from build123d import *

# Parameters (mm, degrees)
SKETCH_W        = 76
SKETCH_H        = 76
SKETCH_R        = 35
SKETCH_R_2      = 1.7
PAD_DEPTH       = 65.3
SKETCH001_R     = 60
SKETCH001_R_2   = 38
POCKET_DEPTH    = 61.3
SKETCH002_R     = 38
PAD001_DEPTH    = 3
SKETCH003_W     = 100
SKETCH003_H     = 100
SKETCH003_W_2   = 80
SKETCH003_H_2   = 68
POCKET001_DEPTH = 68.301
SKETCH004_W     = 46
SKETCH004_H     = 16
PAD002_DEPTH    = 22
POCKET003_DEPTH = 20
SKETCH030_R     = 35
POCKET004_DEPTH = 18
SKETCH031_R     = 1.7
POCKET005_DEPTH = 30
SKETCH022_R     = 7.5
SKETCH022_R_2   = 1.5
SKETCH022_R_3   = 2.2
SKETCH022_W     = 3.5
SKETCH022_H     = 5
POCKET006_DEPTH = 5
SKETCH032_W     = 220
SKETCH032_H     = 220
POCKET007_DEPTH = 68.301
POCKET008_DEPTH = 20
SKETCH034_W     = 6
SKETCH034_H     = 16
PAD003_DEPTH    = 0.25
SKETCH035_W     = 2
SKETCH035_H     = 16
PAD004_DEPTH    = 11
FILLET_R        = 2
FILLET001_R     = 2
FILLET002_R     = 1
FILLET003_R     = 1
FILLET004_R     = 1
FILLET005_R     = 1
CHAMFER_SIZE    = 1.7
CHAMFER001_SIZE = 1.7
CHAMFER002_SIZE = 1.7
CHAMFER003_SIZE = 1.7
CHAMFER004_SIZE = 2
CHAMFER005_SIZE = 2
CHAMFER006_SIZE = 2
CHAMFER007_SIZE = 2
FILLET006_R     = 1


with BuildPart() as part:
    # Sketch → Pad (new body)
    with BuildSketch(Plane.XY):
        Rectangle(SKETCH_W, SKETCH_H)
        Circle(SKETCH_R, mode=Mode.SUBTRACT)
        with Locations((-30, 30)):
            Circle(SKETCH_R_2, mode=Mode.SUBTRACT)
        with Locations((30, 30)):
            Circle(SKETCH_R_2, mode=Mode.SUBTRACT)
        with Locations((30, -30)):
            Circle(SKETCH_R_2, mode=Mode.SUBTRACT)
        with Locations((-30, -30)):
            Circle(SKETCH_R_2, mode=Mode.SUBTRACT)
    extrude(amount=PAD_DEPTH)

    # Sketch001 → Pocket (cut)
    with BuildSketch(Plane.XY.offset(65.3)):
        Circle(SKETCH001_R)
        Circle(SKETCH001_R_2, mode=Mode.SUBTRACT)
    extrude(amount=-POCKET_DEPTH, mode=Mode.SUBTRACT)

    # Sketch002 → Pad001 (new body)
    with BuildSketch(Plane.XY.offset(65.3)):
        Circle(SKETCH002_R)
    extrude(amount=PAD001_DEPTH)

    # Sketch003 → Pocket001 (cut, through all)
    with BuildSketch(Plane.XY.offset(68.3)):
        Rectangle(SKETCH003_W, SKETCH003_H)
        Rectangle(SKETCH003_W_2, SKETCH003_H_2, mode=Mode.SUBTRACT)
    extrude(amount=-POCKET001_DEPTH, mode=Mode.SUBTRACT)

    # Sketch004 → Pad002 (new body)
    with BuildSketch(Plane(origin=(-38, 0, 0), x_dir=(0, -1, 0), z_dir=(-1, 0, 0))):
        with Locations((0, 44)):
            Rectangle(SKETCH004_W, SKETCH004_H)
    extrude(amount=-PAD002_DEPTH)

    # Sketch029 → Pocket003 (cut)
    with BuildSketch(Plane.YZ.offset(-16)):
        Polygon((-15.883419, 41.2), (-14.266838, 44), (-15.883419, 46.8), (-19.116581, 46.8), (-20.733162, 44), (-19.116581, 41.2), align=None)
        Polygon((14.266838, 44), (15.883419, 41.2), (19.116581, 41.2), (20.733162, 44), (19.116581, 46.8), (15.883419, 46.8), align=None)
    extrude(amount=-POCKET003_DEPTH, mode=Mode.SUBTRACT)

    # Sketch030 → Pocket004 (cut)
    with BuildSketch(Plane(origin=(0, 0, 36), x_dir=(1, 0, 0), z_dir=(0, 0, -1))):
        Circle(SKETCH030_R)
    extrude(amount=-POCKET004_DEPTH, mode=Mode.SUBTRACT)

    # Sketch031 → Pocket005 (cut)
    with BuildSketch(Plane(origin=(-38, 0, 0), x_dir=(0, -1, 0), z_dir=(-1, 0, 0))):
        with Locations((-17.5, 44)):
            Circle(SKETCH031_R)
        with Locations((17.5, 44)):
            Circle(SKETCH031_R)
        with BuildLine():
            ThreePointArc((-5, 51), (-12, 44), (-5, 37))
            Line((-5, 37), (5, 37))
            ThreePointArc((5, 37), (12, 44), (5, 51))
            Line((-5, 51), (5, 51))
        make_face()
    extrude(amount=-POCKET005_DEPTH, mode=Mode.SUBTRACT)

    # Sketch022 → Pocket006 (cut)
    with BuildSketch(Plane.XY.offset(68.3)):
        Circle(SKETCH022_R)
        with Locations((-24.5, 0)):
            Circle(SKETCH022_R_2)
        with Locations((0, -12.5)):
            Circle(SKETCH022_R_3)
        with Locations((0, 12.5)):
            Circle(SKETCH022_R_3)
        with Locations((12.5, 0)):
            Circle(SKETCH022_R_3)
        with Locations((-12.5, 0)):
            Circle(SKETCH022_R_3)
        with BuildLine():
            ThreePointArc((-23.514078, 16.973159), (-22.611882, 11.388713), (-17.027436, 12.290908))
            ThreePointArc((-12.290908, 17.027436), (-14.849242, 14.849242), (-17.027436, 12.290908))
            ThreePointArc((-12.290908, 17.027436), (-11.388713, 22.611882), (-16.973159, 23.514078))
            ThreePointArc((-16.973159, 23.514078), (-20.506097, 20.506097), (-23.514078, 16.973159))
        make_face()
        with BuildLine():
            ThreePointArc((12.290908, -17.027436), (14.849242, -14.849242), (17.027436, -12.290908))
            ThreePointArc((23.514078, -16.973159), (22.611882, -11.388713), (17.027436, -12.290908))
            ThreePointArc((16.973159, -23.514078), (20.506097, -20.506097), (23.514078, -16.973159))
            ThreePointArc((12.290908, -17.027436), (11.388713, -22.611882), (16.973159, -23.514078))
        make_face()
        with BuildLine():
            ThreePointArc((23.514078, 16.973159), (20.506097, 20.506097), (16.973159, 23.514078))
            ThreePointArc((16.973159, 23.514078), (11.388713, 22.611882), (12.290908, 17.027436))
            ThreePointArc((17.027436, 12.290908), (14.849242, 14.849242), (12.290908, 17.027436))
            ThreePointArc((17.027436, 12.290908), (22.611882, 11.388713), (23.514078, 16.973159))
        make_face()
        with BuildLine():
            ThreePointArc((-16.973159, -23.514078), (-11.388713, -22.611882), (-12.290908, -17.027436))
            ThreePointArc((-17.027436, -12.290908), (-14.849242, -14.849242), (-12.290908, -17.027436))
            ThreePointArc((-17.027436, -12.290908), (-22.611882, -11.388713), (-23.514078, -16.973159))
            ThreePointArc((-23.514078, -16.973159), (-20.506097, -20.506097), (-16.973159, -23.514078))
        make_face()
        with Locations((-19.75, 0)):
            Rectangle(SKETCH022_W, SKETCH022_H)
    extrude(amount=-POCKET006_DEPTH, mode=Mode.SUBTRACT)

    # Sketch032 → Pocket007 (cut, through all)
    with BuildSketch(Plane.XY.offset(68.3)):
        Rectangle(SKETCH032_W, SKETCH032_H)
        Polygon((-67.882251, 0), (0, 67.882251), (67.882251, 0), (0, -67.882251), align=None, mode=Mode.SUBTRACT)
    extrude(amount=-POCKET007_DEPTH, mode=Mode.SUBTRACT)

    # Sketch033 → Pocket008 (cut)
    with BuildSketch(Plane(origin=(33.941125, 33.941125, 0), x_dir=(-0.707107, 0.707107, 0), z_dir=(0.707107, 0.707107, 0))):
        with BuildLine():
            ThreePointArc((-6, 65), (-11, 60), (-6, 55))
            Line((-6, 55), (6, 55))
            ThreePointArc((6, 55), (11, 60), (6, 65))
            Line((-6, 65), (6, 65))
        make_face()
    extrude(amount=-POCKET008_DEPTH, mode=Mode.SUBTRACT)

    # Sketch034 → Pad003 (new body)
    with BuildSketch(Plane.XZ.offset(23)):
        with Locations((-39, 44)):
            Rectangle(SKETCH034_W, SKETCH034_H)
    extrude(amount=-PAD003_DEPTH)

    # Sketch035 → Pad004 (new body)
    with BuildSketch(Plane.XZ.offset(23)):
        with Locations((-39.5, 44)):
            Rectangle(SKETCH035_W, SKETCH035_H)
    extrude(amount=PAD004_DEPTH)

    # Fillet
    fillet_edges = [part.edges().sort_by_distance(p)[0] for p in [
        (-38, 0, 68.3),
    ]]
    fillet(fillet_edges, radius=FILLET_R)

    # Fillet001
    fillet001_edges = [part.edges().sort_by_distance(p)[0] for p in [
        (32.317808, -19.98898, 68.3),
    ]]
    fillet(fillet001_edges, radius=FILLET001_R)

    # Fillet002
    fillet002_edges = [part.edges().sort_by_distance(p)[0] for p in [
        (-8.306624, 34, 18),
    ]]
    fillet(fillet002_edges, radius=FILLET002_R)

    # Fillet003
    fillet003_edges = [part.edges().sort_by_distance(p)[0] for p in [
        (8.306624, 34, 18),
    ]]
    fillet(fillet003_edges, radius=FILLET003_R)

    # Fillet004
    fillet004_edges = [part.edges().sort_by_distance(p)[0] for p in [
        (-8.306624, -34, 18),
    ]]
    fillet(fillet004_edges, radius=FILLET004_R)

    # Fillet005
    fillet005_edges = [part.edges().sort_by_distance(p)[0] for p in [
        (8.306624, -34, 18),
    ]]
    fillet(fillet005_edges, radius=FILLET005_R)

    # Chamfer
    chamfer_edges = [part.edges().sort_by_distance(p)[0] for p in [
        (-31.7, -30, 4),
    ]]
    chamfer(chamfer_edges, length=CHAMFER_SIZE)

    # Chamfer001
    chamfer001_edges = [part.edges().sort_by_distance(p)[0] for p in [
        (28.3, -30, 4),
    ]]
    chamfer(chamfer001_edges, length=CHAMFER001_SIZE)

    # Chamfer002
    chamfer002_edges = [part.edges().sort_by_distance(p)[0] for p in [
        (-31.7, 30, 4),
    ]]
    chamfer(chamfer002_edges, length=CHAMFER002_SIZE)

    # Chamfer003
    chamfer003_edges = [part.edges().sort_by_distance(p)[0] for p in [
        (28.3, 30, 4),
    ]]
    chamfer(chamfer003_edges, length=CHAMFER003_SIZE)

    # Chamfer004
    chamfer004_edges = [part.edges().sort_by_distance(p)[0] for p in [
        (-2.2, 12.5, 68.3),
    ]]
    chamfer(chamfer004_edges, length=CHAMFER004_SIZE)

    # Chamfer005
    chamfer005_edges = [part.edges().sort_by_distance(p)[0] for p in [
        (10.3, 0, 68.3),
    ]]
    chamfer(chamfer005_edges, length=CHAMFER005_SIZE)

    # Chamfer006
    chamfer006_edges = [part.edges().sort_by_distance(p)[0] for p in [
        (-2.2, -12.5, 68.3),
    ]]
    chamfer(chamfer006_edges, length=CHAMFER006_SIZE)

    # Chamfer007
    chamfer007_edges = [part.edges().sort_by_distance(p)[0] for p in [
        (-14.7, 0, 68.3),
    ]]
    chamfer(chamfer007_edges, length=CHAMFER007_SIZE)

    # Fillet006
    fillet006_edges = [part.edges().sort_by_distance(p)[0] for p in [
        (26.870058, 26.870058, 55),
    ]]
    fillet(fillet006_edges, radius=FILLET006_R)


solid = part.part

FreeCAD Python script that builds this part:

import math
import FreeCAD as App
import Part
import Sketcher

V = App.Vector
Q = App.Units.Quantity


def edges_at(feature, points):
    """Names of the edges that pass closest to the given points."""
    edges = feature.Shape.Edges
    near = lambda p: min(range(len(edges)), key=lambda i: edges[i].distToShape(Part.Vertex(*p))[0])
    return sorted({f"Edge{near(p) + 1}" for p in points})

doc = App.newDocument("Part")
body = doc.addObject("PartDesign::Body", "Body")

sketch1 = doc.addObject("Sketcher::SketchObject", "Sketch")
body.addObject(sketch1)
sketch1.AttachmentSupport = (doc.XY_Plane, [""])
sketch1.MapMode = "FlatFace"
sketch1.addGeometry(Part.LineSegment(V(-38, 38, 0), V(-38, -38, 0)), False)
sketch1.addGeometry(Part.LineSegment(V(-38, -38, 0), V(38, -38, 0)), False)
sketch1.addGeometry(Part.LineSegment(V(38, -38, 0), V(38, 38, 0)), False)
sketch1.addGeometry(Part.LineSegment(V(38, 38, 0), V(-38, 38, 0)), False)
sketch1.addGeometry(Part.Circle(V(-30, -30, 0), V(0, 0, 1), 1.7), False)
sketch1.addGeometry(Part.Circle(V(30, -30, 0), V(0, 0, 1), 1.7), False)
sketch1.addGeometry(Part.Circle(V(-30, 30, 0), V(0, 0, 1), 1.7), False)
sketch1.addGeometry(Part.Circle(V(0, 0, 0), V(0, 0, 1), 35), False)
sketch1.addGeometry(Part.Circle(V(30, 30, 0), V(0, 0, 1), 1.7), False)
sketch1.addConstraint(Sketcher.Constraint("Coincident", 0, 2, 1, 1))
sketch1.addConstraint(Sketcher.Constraint("Coincident", 1, 2, 2, 1))
sketch1.addConstraint(Sketcher.Constraint("Coincident", 2, 2, 3, 1))
sketch1.addConstraint(Sketcher.Constraint("Coincident", 3, 2, 0, 1))
sketch1.addConstraint(Sketcher.Constraint("Vertical", 0))
sketch1.addConstraint(Sketcher.Constraint("Horizontal", 1))
sketch1.addConstraint(Sketcher.Constraint("Vertical", 2))
sketch1.addConstraint(Sketcher.Constraint("Horizontal", 3))
sketch1.addConstraint(Sketcher.Constraint("Coincident", 7, 3, -1, 1))
sketch1.addConstraint(Sketcher.Constraint("Equal", 4, 5))
sketch1.addConstraint(Sketcher.Constraint("Equal", 5, 6))
sketch1.addConstraint(Sketcher.Constraint("Equal", 6, 8))
sketch1.addConstraint(Sketcher.Constraint("Symmetric", 5, 3, 6, 3, -1, 1))
sketch1.addConstraint(Sketcher.Constraint("Symmetric", 4, 3, 8, 3, -1, 1))
sketch1.addConstraint(Sketcher.Constraint("Symmetric", 0, 2, 2, 2, -1, 1))
sketch1.addConstraint(Sketcher.Constraint("Symmetric", 4, 3, 5, 3, -2))
sketch1.addConstraint(Sketcher.Constraint("Equal", 3, 0))
sketch1.addConstraint(Sketcher.Constraint("Diameter", 7, Q("70 mm")))
sketch1.addConstraint(Sketcher.Constraint("Diameter", 4, Q("3.4 mm")))
sketch1.addConstraint(Sketcher.Constraint("DistanceX", 1, 1, 1, 2, Q("76 mm")))
sketch1.addConstraint(Sketcher.Constraint("DistanceX", 4, 3, -1, 1, Q("30 mm")))
sketch1.addConstraint(Sketcher.Constraint("DistanceY", 4, 3, -1, 1, Q("30 mm")))
pad1 = doc.addObject("PartDesign::Pad", "Pad")
body.addObject(pad1)
pad1.Profile = sketch1
pad1.Length = 65.3

sketch2 = doc.addObject("Sketcher::SketchObject", "Sketch001")
body.addObject(sketch2)
sketch2.AttachmentSupport = (doc.XY_Plane, [""])
sketch2.MapMode = "FlatFace"
sketch2.AttachmentOffset = App.Placement(V(0, 0, 65.3), App.Rotation())
sketch2.addGeometry(Part.Circle(V(0, 0, 0), V(0, 0, 1), 60), False)
sketch2.addGeometry(Part.Circle(V(0, 0, 0), V(0, 0, 1), 38), False)
sketch2.addConstraint(Sketcher.Constraint("Coincident", 0, 3, -1, 1))
sketch2.addConstraint(Sketcher.Constraint("Coincident", 1, 3, -1, 1))
sketch2.addConstraint(Sketcher.Constraint("Diameter", 0, Q("120 mm")))
sketch2.addConstraint(Sketcher.Constraint("Diameter", 1, Q("76 mm")))
pocket1 = doc.addObject("PartDesign::Pocket", "Pocket")
body.addObject(pocket1)
pocket1.Profile = sketch2
pocket1.Length = 61.3

sketch3 = doc.addObject("Sketcher::SketchObject", "Sketch002")
body.addObject(sketch3)
sketch3.AttachmentSupport = (doc.XY_Plane, [""])
sketch3.MapMode = "FlatFace"
sketch3.AttachmentOffset = App.Placement(V(0, 0, 65.3), App.Rotation())
sketch3.addGeometry(Part.Circle(V(0, 0, 0), V(0, 0, 1), 38), False)
sketch3.addConstraint(Sketcher.Constraint("Coincident", 0, 3, -1, 1))
sketch3.addConstraint(Sketcher.Constraint("Diameter", 0, Q("76 mm")))
pad2 = doc.addObject("PartDesign::Pad", "Pad001")
body.addObject(pad2)
pad2.Profile = sketch3
pad2.Length = 3

sketch4 = doc.addObject("Sketcher::SketchObject", "Sketch003")
body.addObject(sketch4)
sketch4.AttachmentSupport = (doc.XY_Plane, [""])
sketch4.MapMode = "FlatFace"
sketch4.AttachmentOffset = App.Placement(V(0, 0, 68.3), App.Rotation())
sketch4.addGeometry(Part.LineSegment(V(-50, 50, 0), V(-50, -50, 0)), False)
sketch4.addGeometry(Part.LineSegment(V(-50, -50, 0), V(50, -50, 0)), False)
sketch4.addGeometry(Part.LineSegment(V(50, -50, 0), V(50, 50, 0)), False)
sketch4.addGeometry(Part.LineSegment(V(50, 50, 0), V(-50, 50, 0)), False)
sketch4.addGeometry(Part.LineSegment(V(40, -34, 0), V(-40, -34, 0)), False)
sketch4.addGeometry(Part.LineSegment(V(-40, -34, 0), V(-40, 34, 0)), False)
sketch4.addGeometry(Part.LineSegment(V(-40, 34, 0), V(40, 34, 0)), False)
sketch4.addGeometry(Part.LineSegment(V(40, 34, 0), V(40, -34, 0)), False)
sketch4.addConstraint(Sketcher.Constraint("Coincident", 0, 2, 1, 1))
sketch4.addConstraint(Sketcher.Constraint("Coincident", 1, 2, 2, 1))
sketch4.addConstraint(Sketcher.Constraint("Coincident", 2, 2, 3, 1))
sketch4.addConstraint(Sketcher.Constraint("Coincident", 3, 2, 0, 1))
sketch4.addConstraint(Sketcher.Constraint("Coincident", 4, 2, 5, 1))
sketch4.addConstraint(Sketcher.Constraint("Coincident", 5, 2, 6, 1))
sketch4.addConstraint(Sketcher.Constraint("Coincident", 6, 2, 7, 1))
sketch4.addConstraint(Sketcher.Constraint("Coincident", 7, 2, 4, 1))
sketch4.addConstraint(Sketcher.Constraint("Vertical", 0))
sketch4.addConstraint(Sketcher.Constraint("Horizontal", 1))
sketch4.addConstraint(Sketcher.Constraint("Vertical", 2))
sketch4.addConstraint(Sketcher.Constraint("Horizontal", 3))
sketch4.addConstraint(Sketcher.Constraint("Horizontal", 4))
sketch4.addConstraint(Sketcher.Constraint("Vertical", 5))
sketch4.addConstraint(Sketcher.Constraint("Horizontal", 6))
sketch4.addConstraint(Sketcher.Constraint("Vertical", 7))
sketch4.addConstraint(Sketcher.Constraint("Symmetric", 0, 2, 2, 2, -1, 1))
sketch4.addConstraint(Sketcher.Constraint("Symmetric", 4, 2, 6, 2, -1, 1))
sketch4.addConstraint(Sketcher.Constraint("Equal", 3, 0))
sketch4.addConstraint(Sketcher.Constraint("DistanceX", 1, 1, 1, 2, Q("100 mm")))
sketch4.addConstraint(Sketcher.Constraint("DistanceX", 4, 2, 4, 1, Q("80 mm")))
sketch4.addConstraint(Sketcher.Constraint("DistanceY", 5, 1, 5, 2, Q("68 mm")))
pocket2 = doc.addObject("PartDesign::Pocket", "Pocket001")
body.addObject(pocket2)
pocket2.Profile = sketch4
pocket2.Type = "ThroughAll"

sketch5 = doc.addObject("Sketcher::SketchObject", "Sketch004")
body.addObject(sketch5)
sketch5.AttachmentSupport = (doc.YZ_Plane, [""])
sketch5.MapMode = "FlatFace"
sketch5.AttachmentOffset = App.Placement(V(0, 0, -38), App.Rotation())
sketch5.addGeometry(Part.LineSegment(V(23, 52, 0), V(23, 36, 0)), False)
sketch5.addGeometry(Part.LineSegment(V(23, 36, 0), V(-23, 36, 0)), False)
sketch5.addGeometry(Part.LineSegment(V(-23, 36, 0), V(-23, 52, 0)), False)
sketch5.addGeometry(Part.LineSegment(V(-23, 52, 0), V(23, 52, 0)), False)
sketch5.addConstraint(Sketcher.Constraint("Coincident", 0, 2, 1, 1))
sketch5.addConstraint(Sketcher.Constraint("Coincident", 1, 2, 2, 1))
sketch5.addConstraint(Sketcher.Constraint("Coincident", 2, 2, 3, 1))
sketch5.addConstraint(Sketcher.Constraint("Coincident", 3, 2, 0, 1))
sketch5.addConstraint(Sketcher.Constraint("Vertical", 0))
sketch5.addConstraint(Sketcher.Constraint("Horizontal", 1))
sketch5.addConstraint(Sketcher.Constraint("Vertical", 2))
sketch5.addConstraint(Sketcher.Constraint("Horizontal", 3))
sketch5.addConstraint(Sketcher.Constraint("DistanceX", 1, 2, 1, 1, Q("46 mm")))
sketch5.addConstraint(Sketcher.Constraint("DistanceY", 0, 2, 0, 1, Q("16 mm")))
sketch5.addConstraint(Sketcher.Constraint("DistanceX", -1, 1, 0, 2, Q("23 mm")))
sketch5.addConstraint(Sketcher.Constraint("DistanceY", -1, 1, 0, 2, Q("36 mm")))
pad3 = doc.addObject("PartDesign::Pad", "Pad002")
body.addObject(pad3)
pad3.Profile = sketch5
pad3.Length = 22

sketch6 = doc.addObject("Sketcher::SketchObject", "Sketch005")
body.addObject(sketch6)
sketch6.AttachmentSupport = (doc.YZ_Plane, [""])
sketch6.MapMode = "FlatFace"
sketch6.AttachmentOffset = App.Placement(V(0, 0, -16), App.Rotation())
sketch6.addGeometry(Part.LineSegment(V(-15.9, 41.2, 0), V(-14.3, 44, 0)), False)
sketch6.addGeometry(Part.LineSegment(V(-14.3, 44, 0), V(-15.9, 46.8, 0)), False)
sketch6.addGeometry(Part.LineSegment(V(-15.9, 46.8, 0), V(-19.1, 46.8, 0)), False)
sketch6.addGeometry(Part.LineSegment(V(-19.1, 46.8, 0), V(-20.7, 44, 0)), False)
sketch6.addGeometry(Part.LineSegment(V(-20.7, 44, 0), V(-19.1, 41.2, 0)), False)
sketch6.addGeometry(Part.LineSegment(V(-19.1, 41.2, 0), V(-15.9, 41.2, 0)), False)
sketch6.addGeometry(Part.LineSegment(V(14.3, 44, 0), V(15.9, 41.2, 0)), False)
sketch6.addGeometry(Part.LineSegment(V(15.9, 41.2, 0), V(19.1, 41.2, 0)), False)
sketch6.addGeometry(Part.LineSegment(V(19.1, 41.2, 0), V(20.7, 44, 0)), False)
sketch6.addGeometry(Part.LineSegment(V(20.7, 44, 0), V(19.1, 46.8, 0)), False)
sketch6.addGeometry(Part.LineSegment(V(19.1, 46.8, 0), V(15.9, 46.8, 0)), False)
sketch6.addGeometry(Part.LineSegment(V(15.9, 46.8, 0), V(14.3, 44, 0)), False)
sketch6.addConstraint(Sketcher.Constraint("Coincident", 0, 2, 1, 1))
sketch6.addConstraint(Sketcher.Constraint("Coincident", 1, 2, 2, 1))
sketch6.addConstraint(Sketcher.Constraint("Coincident", 2, 2, 3, 1))
sketch6.addConstraint(Sketcher.Constraint("Coincident", 3, 2, 4, 1))
sketch6.addConstraint(Sketcher.Constraint("Coincident", 4, 2, 5, 1))
sketch6.addConstraint(Sketcher.Constraint("Coincident", 5, 2, 0, 1))
sketch6.addConstraint(Sketcher.Constraint("Coincident", 6, 2, 7, 1))
sketch6.addConstraint(Sketcher.Constraint("Coincident", 7, 2, 8, 1))
sketch6.addConstraint(Sketcher.Constraint("Coincident", 8, 2, 9, 1))
sketch6.addConstraint(Sketcher.Constraint("Coincident", 9, 2, 10, 1))
sketch6.addConstraint(Sketcher.Constraint("Coincident", 10, 2, 11, 1))
sketch6.addConstraint(Sketcher.Constraint("Coincident", 11, 2, 6, 1))
sketch6.addConstraint(Sketcher.Constraint("Horizontal", 2))
sketch6.addConstraint(Sketcher.Constraint("Horizontal", 5))
sketch6.addConstraint(Sketcher.Constraint("Horizontal", 7))
sketch6.addConstraint(Sketcher.Constraint("Horizontal", 10))
sketch6.addConstraint(Sketcher.Constraint("Symmetric", 5, 2, 6, 2, -2))
sketch6.addConstraint(Sketcher.Constraint("Symmetric", 3, 2, 8, 2, -2))
sketch6.addConstraint(Sketcher.Constraint("Symmetric", 2, 2, 9, 2, -2))
sketch6.addConstraint(Sketcher.Constraint("Symmetric", 0, 2, 11, 2, -2))
sketch6.addConstraint(Sketcher.Constraint("Parallel", 0, 3))
sketch6.addConstraint(Sketcher.Constraint("Parallel", 1, 4))
sketch6.addConstraint(Sketcher.Constraint("Parallel", 4, 6))
sketch6.addConstraint(Sketcher.Constraint("Parallel", 3, 8))
sketch6.addConstraint(Sketcher.Constraint("Parallel", 8, 11))
sketch6.addConstraint(Sketcher.Constraint("Horizontal", 0, 2, 3, 2))
sketch6.addConstraint(Sketcher.Constraint("Vertical", 2, 2, 4, 2))
sketch6.addConstraint(Sketcher.Constraint("Angle", 0, Q("59.999996 deg")))
sketch6.addConstraint(Sketcher.Constraint("DistanceY", -1, 1, 0, 2, Q("44 mm")))
sketch6.addConstraint(Sketcher.Constraint("DistanceX", 4, 2, 6, 2, Q("35 mm")))
sketch6.addConstraint(Sketcher.Constraint("DistanceY", -1, 1, 1, 2, Q("46.8 mm")))
sketch6.addConstraint(Sketcher.Constraint("DistanceX", 2, 2, 2, 1, Q("3.233162 mm")))
pocket3 = doc.addObject("PartDesign::Pocket", "Pocket002")
body.addObject(pocket3)
pocket3.Profile = sketch6
pocket3.Length = 20

sketch7 = doc.addObject("Sketcher::SketchObject", "Sketch006")
body.addObject(sketch7)
sketch7.AttachmentSupport = (doc.XY_Plane, [""])
sketch7.MapMode = "FlatFace"
sketch7.AttachmentOffset = App.Placement(V(0, 0, 36), App.Rotation())
sketch7.addGeometry(Part.Circle(V(0, 0, 0), V(0, 0, 1), 35), False)
sketch7.addConstraint(Sketcher.Constraint("Coincident", 0, 3, -1, 1))
sketch7.addConstraint(Sketcher.Constraint("Diameter", 0, Q("70 mm")))
pocket4 = doc.addObject("PartDesign::Pocket", "Pocket003")
body.addObject(pocket4)
pocket4.Profile = sketch7
pocket4.Length = 18
pocket4.Reversed = True

sketch8 = doc.addObject("Sketcher::SketchObject", "Sketch007")
body.addObject(sketch8)
sketch8.AttachmentSupport = (doc.YZ_Plane, [""])
sketch8.MapMode = "FlatFace"
sketch8.AttachmentOffset = App.Placement(V(0, 0, -38), App.Rotation())
sketch8.addGeometry(Part.Circle(V(17.5, 44, 0), V(0, 0, 1), 1.7), False)
sketch8.addGeometry(Part.Circle(V(-17.5, 44, 0), V(0, 0, 1), 1.7), False)
sketch8.addGeometry(Part.ArcOfCircle(Part.Circle(V(5, 44, 0), V(0, 0, 1), 7), math.radians(-90), math.radians(90)), False)
sketch8.addGeometry(Part.LineSegment(V(5, 37, 0), V(-5, 37, 0)), False)
sketch8.addGeometry(Part.ArcOfCircle(Part.Circle(V(-5, 44, 0), V(0, 0, 1), 7), math.radians(90), math.radians(270)), False)
sketch8.addGeometry(Part.LineSegment(V(-5, 51, 0), V(5, 51, 0)), False)
sketch8.addConstraint(Sketcher.Constraint("Tangent", 2, 1, 3, 1))
sketch8.addConstraint(Sketcher.Constraint("Tangent", 3, 2, 4, 2))
sketch8.addConstraint(Sketcher.Constraint("Tangent", 4, 1, 5, 1))
sketch8.addConstraint(Sketcher.Constraint("Tangent", 5, 2, 2, 2))
sketch8.addConstraint(Sketcher.Constraint("Horizontal", 3))
sketch8.addConstraint(Sketcher.Constraint("Horizontal", 5))
sketch8.addConstraint(Sketcher.Constraint("Equal", 0, 1))
sketch8.addConstraint(Sketcher.Constraint("Symmetric", 0, 3, 1, 3, -2))
sketch8.addConstraint(Sketcher.Constraint("Horizontal", 1, 3, 2, 3))
sketch8.addConstraint(Sketcher.Constraint("Radius", 2, Q("7 mm")))
sketch8.addConstraint(Sketcher.Constraint("Diameter", 0, Q("3.4 mm")))
sketch8.addConstraint(Sketcher.Constraint("DistanceX", 3, 2, 3, 1, Q("10 mm")))
sketch8.addConstraint(Sketcher.Constraint("DistanceY", -1, 1, 0, 3, Q("44 mm")))
sketch8.addConstraint(Sketcher.Constraint("DistanceX", -1, 1, 2, 3, Q("5 mm")))
sketch8.addConstraint(Sketcher.Constraint("DistanceX", 1, 3, 0, 3, Q("35 mm")))
pocket5 = doc.addObject("PartDesign::Pocket", "Pocket004")
body.addObject(pocket5)
pocket5.Profile = sketch8
pocket5.Length = 30
pocket5.Reversed = True

sketch9 = doc.addObject("Sketcher::SketchObject", "Sketch008")
body.addObject(sketch9)
sketch9.AttachmentSupport = (doc.XY_Plane, [""])
sketch9.MapMode = "FlatFace"
sketch9.AttachmentOffset = App.Placement(V(0, 0, 68.3), App.Rotation())
sketch9.addGeometry(Part.Circle(V(0, 0, 0), V(0, 0, 1), 7.5), False)
sketch9.addGeometry(Part.Circle(V(-24.5, 0, 0), V(0, 0, 1), 1.5), False)
sketch9.addGeometry(Part.Circle(V(0, -12.5, 0), V(0, 0, 1), 2.2), False)
sketch9.addGeometry(Part.Circle(V(0, 12.5, 0), V(0, 0, 1), 2.2), False)
sketch9.addGeometry(Part.Circle(V(12.5, 0, 0), V(0, 0, 1), 2.2), False)
sketch9.addGeometry(Part.Circle(V(-12.5, 0, 0), V(0, 0, 1), 2.2), False)
sketch9.addGeometry(Part.ArcOfCircle(Part.Circle(V(-20.3, 14.6, 0), V(0, 0, 1), 4), math.radians(144), math.radians(324)), False)
sketch9.addGeometry(Part.ArcOfCircle(Part.Circle(V(0, 0, 0), V(0, 0, 1), 21), math.radians(125.82), math.radians(144.18)), False)
sketch9.addGeometry(Part.ArcOfCircle(Part.Circle(V(-14.6, 20.3, 0), V(0, 0, 1), 4), math.radians(-54), math.radians(126)), False)
sketch9.addGeometry(Part.ArcOfCircle(Part.Circle(V(0, 0, 0), V(0, 0, 1), 29), math.radians(125.82), math.radians(144.18)), False)
sketch9.addGeometry(Part.ArcOfCircle(Part.Circle(V(0, 0, 0), V(0, 0, 1), 21), math.radians(-54.18), math.radians(-35.82)), False)
sketch9.addGeometry(Part.ArcOfCircle(Part.Circle(V(14.6, -20.3, 0), V(0, 0, 1), 4), math.radians(126), math.radians(306)), False)
sketch9.addGeometry(Part.ArcOfCircle(Part.Circle(V(0, 0, 0), V(0, 0, 1), 29), math.radians(-54.18), math.radians(-35.82)), False)
sketch9.addGeometry(Part.ArcOfCircle(Part.Circle(V(20.3, -14.6, 0), V(0, 0, 1), 4), math.radians(-36), math.radians(144)), False)
sketch9.addGeometry(Part.ArcOfCircle(Part.Circle(V(0, 0, 0), V(0, 0, 1), 29), math.radians(35.82), math.radians(54.18)), False)
sketch9.addGeometry(Part.ArcOfCircle(Part.Circle(V(14.6, 20.3, 0), V(0, 0, 1), 4), math.radians(54), math.radians(234)), False)
sketch9.addGeometry(Part.ArcOfCircle(Part.Circle(V(0, 0, 0), V(0, 0, 1), 21), math.radians(35.82), math.radians(54.18)), False)
sketch9.addGeometry(Part.ArcOfCircle(Part.Circle(V(20.3, 14.6, 0), V(0, 0, 1), 4), math.radians(-144), math.radians(36)), False)
sketch9.addGeometry(Part.ArcOfCircle(Part.Circle(V(-14.6, -20.3, 0), V(0, 0, 1), 4), math.radians(-126), math.radians(54)), False)
sketch9.addGeometry(Part.ArcOfCircle(Part.Circle(V(0, 0, 0), V(0, 0, 1), 21), math.radians(-144.18), math.radians(-125.82)), False)
sketch9.addGeometry(Part.ArcOfCircle(Part.Circle(V(-20.3, -14.6, 0), V(0, 0, 1), 4), math.radians(36), math.radians(216)), False)
sketch9.addGeometry(Part.ArcOfCircle(Part.Circle(V(0, 0, 0), V(0, 0, 1), 29), math.radians(-144.18), math.radians(-125.82)), False)
sketch9.addGeometry(Part.LineSegment(V(-21.5, 2.5, 0), V(-21.5, -2.5, 0)), False)
sketch9.addGeometry(Part.LineSegment(V(-21.5, -2.5, 0), V(-18, -2.5, 0)), False)
sketch9.addGeometry(Part.LineSegment(V(-18, -2.5, 0), V(-18, 2.5, 0)), False)
sketch9.addGeometry(Part.LineSegment(V(-18, 2.5, 0), V(-21.5, 2.5, 0)), False)
sketch9.addConstraint(Sketcher.Constraint("Tangent", 6, 2, 7, 2))
sketch9.addConstraint(Sketcher.Constraint("Tangent", 7, 1, 8, 1))
sketch9.addConstraint(Sketcher.Constraint("Tangent", 8, 2, 9, 1))
sketch9.addConstraint(Sketcher.Constraint("Tangent", 9, 2, 6, 1))
sketch9.addConstraint(Sketcher.Constraint("Tangent", 10, 1, 11, 1))
sketch9.addConstraint(Sketcher.Constraint("Tangent", 11, 2, 12, 1))
sketch9.addConstraint(Sketcher.Constraint("Tangent", 12, 2, 13, 1))
sketch9.addConstraint(Sketcher.Constraint("Tangent", 13, 2, 10, 2))
sketch9.addConstraint(Sketcher.Constraint("Tangent", 14, 2, 15, 1))
sketch9.addConstraint(Sketcher.Constraint("Tangent", 15, 2, 16, 2))
sketch9.addConstraint(Sketcher.Constraint("Tangent", 16, 1, 17, 1))
sketch9.addConstraint(Sketcher.Constraint("Tangent", 17, 2, 14, 1))
sketch9.addConstraint(Sketcher.Constraint("Tangent", 18, 2, 19, 2))
sketch9.addConstraint(Sketcher.Constraint("Tangent", 19, 1, 20, 1))
sketch9.addConstraint(Sketcher.Constraint("Tangent", 20, 2, 21, 1))
sketch9.addConstraint(Sketcher.Constraint("Tangent", 21, 2, 18, 1))
sketch9.addConstraint(Sketcher.Constraint("Coincident", 22, 2, 23, 1))
sketch9.addConstraint(Sketcher.Constraint("Coincident", 23, 2, 24, 1))
sketch9.addConstraint(Sketcher.Constraint("Coincident", 24, 2, 25, 1))
sketch9.addConstraint(Sketcher.Constraint("Coincident", 25, 2, 22, 1))
sketch9.addConstraint(Sketcher.Constraint("Vertical", 22))
sketch9.addConstraint(Sketcher.Constraint("Horizontal", 23))
sketch9.addConstraint(Sketcher.Constraint("Vertical", 24))
sketch9.addConstraint(Sketcher.Constraint("Horizontal", 25))
sketch9.addConstraint(Sketcher.Constraint("Coincident", 0, 3, -1, 1))
sketch9.addConstraint(Sketcher.Constraint("Equal", 2, 3))
sketch9.addConstraint(Sketcher.Constraint("Equal", 3, 4))
sketch9.addConstraint(Sketcher.Constraint("Equal", 4, 5))
sketch9.addConstraint(Sketcher.Constraint("Equal", 6, 8))
sketch9.addConstraint(Sketcher.Constraint("Equal", 7, 10))
sketch9.addConstraint(Sketcher.Constraint("Equal", 8, 11))
sketch9.addConstraint(Sketcher.Constraint("Equal", 9, 12))
sketch9.addConstraint(Sketcher.Constraint("Equal", 11, 13))
sketch9.addConstraint(Sketcher.Constraint("Equal", 12, 14))
sketch9.addConstraint(Sketcher.Constraint("Equal", 13, 15))
sketch9.addConstraint(Sketcher.Constraint("Equal", 10, 16))
sketch9.addConstraint(Sketcher.Constraint("Equal", 15, 17))
sketch9.addConstraint(Sketcher.Constraint("Equal", 17, 18))
sketch9.addConstraint(Sketcher.Constraint("Equal", 16, 19))
sketch9.addConstraint(Sketcher.Constraint("Equal", 18, 20))
sketch9.addConstraint(Sketcher.Constraint("Equal", 14, 21))
sketch9.addConstraint(Sketcher.Constraint("Symmetric", 2, 3, 3, 3, -1, 1))
sketch9.addConstraint(Sketcher.Constraint("Symmetric", 4, 3, 5, 3, -1, 1))
sketch9.addConstraint(Sketcher.Constraint("Symmetric", 7, 3, 10, 3, -1, 1))
sketch9.addConstraint(Sketcher.Constraint("Symmetric", 15, 3, 18, 3, -1, 1))
sketch9.addConstraint(Sketcher.Constraint("Symmetric", 17, 3, 20, 3, -1, 1))
sketch9.addConstraint(Sketcher.Constraint("Symmetric", 9, 3, 14, 3, -2))
sketch9.addConstraint(Sketcher.Constraint("PointOnObject", 1, 3, -1))
sketch9.addConstraint(Sketcher.Constraint("PointOnObject", 2, 3, -2))
sketch9.addConstraint(Sketcher.Constraint("PointOnObject", 4, 3, -1))
sketch9.addConstraint(Sketcher.Constraint("Horizontal", 8, 3, 15, 3))
sketch9.addConstraint(Sketcher.Constraint("Horizontal", 6, 3, 17, 3))
sketch9.addConstraint(Sketcher.Constraint("Horizontal", 11, 3, 18, 3))
sketch9.addConstraint(Sketcher.Constraint("Horizontal", 13, 3, 20, 3))
sketch9.addConstraint(Sketcher.Constraint("Diameter", 0, Q("15 mm")))
sketch9.addConstraint(Sketcher.Constraint("Diameter", 1, Q("3 mm")))
sketch9.addConstraint(Sketcher.Constraint("Radius", 6, Q("4 mm")))
sketch9.addConstraint(Sketcher.Constraint("Diameter", 2, Q("4.4 mm")))
sketch9.addConstraint(Sketcher.Constraint("DistanceY", 22, 2, 22, 1, Q("5 mm")))
sketch9.addConstraint(Sketcher.Constraint("DistanceX", 23, 1, 23, 2, Q("3.5 mm")))
sketch9.addConstraint(Sketcher.Constraint("DistanceX", 23, 2, -1, 1, Q("18 mm")))
sketch9.addConstraint(Sketcher.Constraint("DistanceY", 2, 3, 3, 3, Q("25 mm")))
sketch9.addConstraint(Sketcher.Constraint("DistanceX", 1, 3, 4, 3, Q("37 mm")))
sketch9.addConstraint(Sketcher.Constraint("DistanceX", 1, 3, 5, 3, Q("12 mm")))
sketch9.addConstraint(Sketcher.Constraint("DistanceY", 22, 2, -1, 1, Q("2.5 mm")))
sketch9.addConstraint(Sketcher.Constraint("Radius", 9, Q("28.99995 mm")))
sketch9.addConstraint(Sketcher.Constraint("Radius", 7, Q("21.000037 mm")))
sketch9.addConstraint(Sketcher.Constraint("DistanceY", 13, 3, 12, 3, Q("14.631998 mm")))
sketch9.addConstraint(Sketcher.Constraint("DistanceX", 14, 3, 15, 3, Q("14.631998 mm")))
sketch9.addConstraint(Sketcher.Constraint("DistanceY", -1, 1, 6, 2, Q("12.290908 mm")))
sketch9.addConstraint(Sketcher.Constraint("DistanceX", 7, 1, -1, 1, Q("12.290908 mm")))
pocket6 = doc.addObject("PartDesign::Pocket", "Pocket005")
body.addObject(pocket6)
pocket6.Profile = sketch9
pocket6.Length = 5

sketch10 = doc.addObject("Sketcher::SketchObject", "Sketch009")
body.addObject(sketch10)
sketch10.AttachmentSupport = (doc.XY_Plane, [""])
sketch10.MapMode = "FlatFace"
sketch10.AttachmentOffset = App.Placement(V(0, 0, 68.3), App.Rotation())
sketch10.addGeometry(Part.LineSegment(V(-110, 110, 0), V(-110, -110, 0)), False)
sketch10.addGeometry(Part.LineSegment(V(-110, -110, 0), V(110, -110, 0)), False)
sketch10.addGeometry(Part.LineSegment(V(110, -110, 0), V(110, 110, 0)), False)
sketch10.addGeometry(Part.LineSegment(V(110, 110, 0), V(-110, 110, 0)), False)
sketch10.addGeometry(Part.LineSegment(V(0, -68, 0), V(-68, 0, 0)), False)
sketch10.addGeometry(Part.LineSegment(V(-68, 0, 0), V(0, 68, 0)), False)
sketch10.addGeometry(Part.LineSegment(V(0, 68, 0), V(68, 0, 0)), False)
sketch10.addGeometry(Part.LineSegment(V(68, 0, 0), V(0, -68, 0)), False)
sketch10.addConstraint(Sketcher.Constraint("Coincident", 0, 2, 1, 1))
sketch10.addConstraint(Sketcher.Constraint("Coincident", 1, 2, 2, 1))
sketch10.addConstraint(Sketcher.Constraint("Coincident", 2, 2, 3, 1))
sketch10.addConstraint(Sketcher.Constraint("Coincident", 3, 2, 0, 1))
sketch10.addConstraint(Sketcher.Constraint("Coincident", 4, 2, 5, 1))
sketch10.addConstraint(Sketcher.Constraint("Coincident", 5, 2, 6, 1))
sketch10.addConstraint(Sketcher.Constraint("Coincident", 6, 2, 7, 1))
sketch10.addConstraint(Sketcher.Constraint("Coincident", 7, 2, 4, 1))
sketch10.addConstraint(Sketcher.Constraint("Vertical", 0))
sketch10.addConstraint(Sketcher.Constraint("Horizontal", 1))
sketch10.addConstraint(Sketcher.Constraint("Vertical", 2))
sketch10.addConstraint(Sketcher.Constraint("Horizontal", 3))
sketch10.addConstraint(Sketcher.Constraint("Symmetric", 0, 2, 2, 2, -1, 1))
sketch10.addConstraint(Sketcher.Constraint("Symmetric", 4, 2, 6, 2, -1, 1))
sketch10.addConstraint(Sketcher.Constraint("Symmetric", 5, 2, 7, 2, -1, 1))
sketch10.addConstraint(Sketcher.Constraint("PointOnObject", 4, 2, -1))
sketch10.addConstraint(Sketcher.Constraint("PointOnObject", 5, 2, -2))
sketch10.addConstraint(Sketcher.Constraint("Perpendicular", 4, 5))
sketch10.addConstraint(Sketcher.Constraint("Equal", 3, 0))
sketch10.addConstraint(Sketcher.Constraint("DistanceX", 1, 1, 1, 2, Q("220 mm")))
sketch10.addConstraint(Sketcher.Constraint("Distance", 4, Q("96 mm")))
pocket7 = doc.addObject("PartDesign::Pocket", "Pocket006")
body.addObject(pocket7)
pocket7.Profile = sketch10
pocket7.Type = "ThroughAll"

sketch11 = doc.addObject("Sketcher::SketchObject", "Sketch010")
body.addObject(sketch11)
sketch11.Placement = App.Placement(V(33.941125, 33.941125, 0), App.Rotation(V(-0.707106781, 0.707106781, 0), V(0, 0, 0.999999999), V(0.707106781, 0.707106781, 0), "ZXY"))
sketch11.addGeometry(Part.ArcOfCircle(Part.Circle(V(-6, 60, 0), V(0, 0, 1), 5), math.radians(90), math.radians(270)), False)
sketch11.addGeometry(Part.LineSegment(V(-6, 55, 0), V(6, 55, 0)), False)
sketch11.addGeometry(Part.ArcOfCircle(Part.Circle(V(6, 60, 0), V(0, 0, 1), 5), math.radians(-90), math.radians(90)), False)
sketch11.addGeometry(Part.LineSegment(V(6, 65, 0), V(-6, 65, 0)), False)
sketch11.addConstraint(Sketcher.Constraint("Tangent", 0, 2, 1, 1))
sketch11.addConstraint(Sketcher.Constraint("Tangent", 1, 2, 2, 1))
sketch11.addConstraint(Sketcher.Constraint("Tangent", 2, 2, 3, 1))
sketch11.addConstraint(Sketcher.Constraint("Tangent", 3, 2, 0, 1))
sketch11.addConstraint(Sketcher.Constraint("Horizontal", 1))
sketch11.addConstraint(Sketcher.Constraint("Horizontal", 3))
sketch11.addConstraint(Sketcher.Constraint("Radius", 0, Q("5 mm")))
sketch11.addConstraint(Sketcher.Constraint("DistanceX", 1, 1, 1, 2, Q("12 mm")))
sketch11.addConstraint(Sketcher.Constraint("DistanceX", 0, 3, -1, 1, Q("6 mm")))
sketch11.addConstraint(Sketcher.Constraint("DistanceY", -1, 1, 0, 3, Q("60 mm")))
pocket8 = doc.addObject("PartDesign::Pocket", "Pocket007")
body.addObject(pocket8)
pocket8.Profile = sketch11
pocket8.Length = 20

sketch12 = doc.addObject("Sketcher::SketchObject", "Sketch011")
body.addObject(sketch12)
sketch12.AttachmentSupport = (doc.XZ_Plane, [""])
sketch12.MapMode = "FlatFace"
sketch12.AttachmentOffset = App.Placement(V(0, 0, 23), App.Rotation())
sketch12.addGeometry(Part.LineSegment(V(-42, 52, 0), V(-42, 36, 0)), False)
sketch12.addGeometry(Part.LineSegment(V(-42, 36, 0), V(-36, 36, 0)), False)
sketch12.addGeometry(Part.LineSegment(V(-36, 36, 0), V(-36, 52, 0)), False)
sketch12.addGeometry(Part.LineSegment(V(-36, 52, 0), V(-42, 52, 0)), False)
sketch12.addConstraint(Sketcher.Constraint("Coincident", 0, 2, 1, 1))
sketch12.addConstraint(Sketcher.Constraint("Coincident", 1, 2, 2, 1))
sketch12.addConstraint(Sketcher.Constraint("Coincident", 2, 2, 3, 1))
sketch12.addConstraint(Sketcher.Constraint("Coincident", 3, 2, 0, 1))
sketch12.addConstraint(Sketcher.Constraint("Vertical", 0))
sketch12.addConstraint(Sketcher.Constraint("Horizontal", 1))
sketch12.addConstraint(Sketcher.Constraint("Vertical", 2))
sketch12.addConstraint(Sketcher.Constraint("Horizontal", 3))
sketch12.addConstraint(Sketcher.Constraint("DistanceX", 1, 1, 1, 2, Q("6 mm")))
sketch12.addConstraint(Sketcher.Constraint("DistanceY", 0, 2, 0, 1, Q("16 mm")))
sketch12.addConstraint(Sketcher.Constraint("DistanceX", 0, 2, -1, 1, Q("42 mm")))
sketch12.addConstraint(Sketcher.Constraint("DistanceY", -1, 1, 0, 2, Q("36 mm")))
pad4 = doc.addObject("PartDesign::Pad", "Pad003")
body.addObject(pad4)
pad4.Profile = sketch12
pad4.Length = 0.25
pad4.Reversed = True

sketch13 = doc.addObject("Sketcher::SketchObject", "Sketch012")
body.addObject(sketch13)
sketch13.AttachmentSupport = (doc.XZ_Plane, [""])
sketch13.MapMode = "FlatFace"
sketch13.AttachmentOffset = App.Placement(V(0, 0, 23), App.Rotation())
sketch13.addGeometry(Part.LineSegment(V(-40.5, 52, 0), V(-40.5, 36, 0)), False)
sketch13.addGeometry(Part.LineSegment(V(-40.5, 36, 0), V(-38.5, 36, 0)), False)
sketch13.addGeometry(Part.LineSegment(V(-38.5, 36, 0), V(-38.5, 52, 0)), False)
sketch13.addGeometry(Part.LineSegment(V(-38.5, 52, 0), V(-40.5, 52, 0)), False)
sketch13.addConstraint(Sketcher.Constraint("Coincident", 0, 2, 1, 1))
sketch13.addConstraint(Sketcher.Constraint("Coincident", 1, 2, 2, 1))
sketch13.addConstraint(Sketcher.Constraint("Coincident", 2, 2, 3, 1))
sketch13.addConstraint(Sketcher.Constraint("Coincident", 3, 2, 0, 1))
sketch13.addConstraint(Sketcher.Constraint("Vertical", 0))
sketch13.addConstraint(Sketcher.Constraint("Horizontal", 1))
sketch13.addConstraint(Sketcher.Constraint("Vertical", 2))
sketch13.addConstraint(Sketcher.Constraint("Horizontal", 3))
sketch13.addConstraint(Sketcher.Constraint("DistanceX", 1, 1, 1, 2, Q("2 mm")))
sketch13.addConstraint(Sketcher.Constraint("DistanceY", 0, 2, 0, 1, Q("16 mm")))
sketch13.addConstraint(Sketcher.Constraint("DistanceY", -1, 1, 0, 2, Q("36 mm")))
sketch13.addConstraint(Sketcher.Constraint("DistanceX", 0, 2, -1, 1, Q("40.5 mm")))
pad5 = doc.addObject("PartDesign::Pad", "Pad004")
body.addObject(pad5)
pad5.Profile = sketch13
pad5.Length = 11
doc.recompute()

fillet = doc.addObject("PartDesign::Fillet", "Fillet")
body.addObject(fillet)
fillet.Base = (pad5, edges_at(pad5, [(-38, 0, 68.3)]))
fillet.Radius = 2
doc.recompute()

fillet2 = doc.addObject("PartDesign::Fillet", "Fillet001")
body.addObject(fillet2)
fillet2.Base = (fillet, edges_at(fillet, [(38, 0, 68.3)]))
fillet2.Radius = 2
doc.recompute()

fillet3 = doc.addObject("PartDesign::Fillet", "Fillet002")
body.addObject(fillet3)
fillet3.Base = (fillet2, edges_at(fillet2, [(-8.307, 34, 32.65)]))
fillet3.Radius = 1
doc.recompute()

fillet4 = doc.addObject("PartDesign::Fillet", "Fillet003")
body.addObject(fillet4)
fillet4.Base = (fillet3, edges_at(fillet3, [(8.307, 34, 32.65)]))
fillet4.Radius = 1
doc.recompute()

fillet5 = doc.addObject("PartDesign::Fillet", "Fillet004")
body.addObject(fillet5)
fillet5.Base = (fillet4, edges_at(fillet4, [(-8.307, -34, 32.65)]))
fillet5.Radius = 1
doc.recompute()

fillet6 = doc.addObject("PartDesign::Fillet", "Fillet005")
body.addObject(fillet6)
fillet6.Base = (fillet5, edges_at(fillet5, [(8.307, -34, 32.65)]))
fillet6.Radius = 1
doc.recompute()

chamfer = doc.addObject("PartDesign::Chamfer", "Chamfer")
body.addObject(chamfer)
chamfer.Base = (fillet6, edges_at(fillet6, [(-31.7, -30, 4)]))
chamfer.Size = 1.7
doc.recompute()

chamfer2 = doc.addObject("PartDesign::Chamfer", "Chamfer001")
body.addObject(chamfer2)
chamfer2.Base = (chamfer, edges_at(chamfer, [(28.3, -30, 4)]))
chamfer2.Size = 1.7
doc.recompute()

chamfer3 = doc.addObject("PartDesign::Chamfer", "Chamfer002")
body.addObject(chamfer3)
chamfer3.Base = (chamfer2, edges_at(chamfer2, [(-31.7, 30, 4)]))
chamfer3.Size = 1.7
doc.recompute()

chamfer4 = doc.addObject("PartDesign::Chamfer", "Chamfer003")
body.addObject(chamfer4)
chamfer4.Base = (chamfer3, edges_at(chamfer3, [(28.3, 30, 4)]))
chamfer4.Size = 1.7
doc.recompute()

chamfer5 = doc.addObject("PartDesign::Chamfer", "Chamfer004")
body.addObject(chamfer5)
chamfer5.Base = (chamfer4, edges_at(chamfer4, [(-2.2, 12.5, 68.3)]))
chamfer5.Size = 2
doc.recompute()

chamfer6 = doc.addObject("PartDesign::Chamfer", "Chamfer005")
body.addObject(chamfer6)
chamfer6.Base = (chamfer5, edges_at(chamfer5, [(10.3, 0, 68.3)]))
chamfer6.Size = 2
doc.recompute()

chamfer7 = doc.addObject("PartDesign::Chamfer", "Chamfer006")
body.addObject(chamfer7)
chamfer7.Base = (chamfer6, edges_at(chamfer6, [(-2.2, -12.5, 68.3)]))
chamfer7.Size = 2
doc.recompute()

chamfer8 = doc.addObject("PartDesign::Chamfer", "Chamfer007")
body.addObject(chamfer8)
chamfer8.Base = (chamfer7, edges_at(chamfer7, [(-14.7, 0, 68.3)]))
chamfer8.Size = 2
doc.recompute()

fillet7 = doc.addObject("PartDesign::Fillet", "Fillet006")
body.addObject(fillet7)
fillet7.Base = (chamfer8, edges_at(chamfer8, [(26.87, 26.87, 55)]))
fillet7.Radius = 1

doc.recompute()
